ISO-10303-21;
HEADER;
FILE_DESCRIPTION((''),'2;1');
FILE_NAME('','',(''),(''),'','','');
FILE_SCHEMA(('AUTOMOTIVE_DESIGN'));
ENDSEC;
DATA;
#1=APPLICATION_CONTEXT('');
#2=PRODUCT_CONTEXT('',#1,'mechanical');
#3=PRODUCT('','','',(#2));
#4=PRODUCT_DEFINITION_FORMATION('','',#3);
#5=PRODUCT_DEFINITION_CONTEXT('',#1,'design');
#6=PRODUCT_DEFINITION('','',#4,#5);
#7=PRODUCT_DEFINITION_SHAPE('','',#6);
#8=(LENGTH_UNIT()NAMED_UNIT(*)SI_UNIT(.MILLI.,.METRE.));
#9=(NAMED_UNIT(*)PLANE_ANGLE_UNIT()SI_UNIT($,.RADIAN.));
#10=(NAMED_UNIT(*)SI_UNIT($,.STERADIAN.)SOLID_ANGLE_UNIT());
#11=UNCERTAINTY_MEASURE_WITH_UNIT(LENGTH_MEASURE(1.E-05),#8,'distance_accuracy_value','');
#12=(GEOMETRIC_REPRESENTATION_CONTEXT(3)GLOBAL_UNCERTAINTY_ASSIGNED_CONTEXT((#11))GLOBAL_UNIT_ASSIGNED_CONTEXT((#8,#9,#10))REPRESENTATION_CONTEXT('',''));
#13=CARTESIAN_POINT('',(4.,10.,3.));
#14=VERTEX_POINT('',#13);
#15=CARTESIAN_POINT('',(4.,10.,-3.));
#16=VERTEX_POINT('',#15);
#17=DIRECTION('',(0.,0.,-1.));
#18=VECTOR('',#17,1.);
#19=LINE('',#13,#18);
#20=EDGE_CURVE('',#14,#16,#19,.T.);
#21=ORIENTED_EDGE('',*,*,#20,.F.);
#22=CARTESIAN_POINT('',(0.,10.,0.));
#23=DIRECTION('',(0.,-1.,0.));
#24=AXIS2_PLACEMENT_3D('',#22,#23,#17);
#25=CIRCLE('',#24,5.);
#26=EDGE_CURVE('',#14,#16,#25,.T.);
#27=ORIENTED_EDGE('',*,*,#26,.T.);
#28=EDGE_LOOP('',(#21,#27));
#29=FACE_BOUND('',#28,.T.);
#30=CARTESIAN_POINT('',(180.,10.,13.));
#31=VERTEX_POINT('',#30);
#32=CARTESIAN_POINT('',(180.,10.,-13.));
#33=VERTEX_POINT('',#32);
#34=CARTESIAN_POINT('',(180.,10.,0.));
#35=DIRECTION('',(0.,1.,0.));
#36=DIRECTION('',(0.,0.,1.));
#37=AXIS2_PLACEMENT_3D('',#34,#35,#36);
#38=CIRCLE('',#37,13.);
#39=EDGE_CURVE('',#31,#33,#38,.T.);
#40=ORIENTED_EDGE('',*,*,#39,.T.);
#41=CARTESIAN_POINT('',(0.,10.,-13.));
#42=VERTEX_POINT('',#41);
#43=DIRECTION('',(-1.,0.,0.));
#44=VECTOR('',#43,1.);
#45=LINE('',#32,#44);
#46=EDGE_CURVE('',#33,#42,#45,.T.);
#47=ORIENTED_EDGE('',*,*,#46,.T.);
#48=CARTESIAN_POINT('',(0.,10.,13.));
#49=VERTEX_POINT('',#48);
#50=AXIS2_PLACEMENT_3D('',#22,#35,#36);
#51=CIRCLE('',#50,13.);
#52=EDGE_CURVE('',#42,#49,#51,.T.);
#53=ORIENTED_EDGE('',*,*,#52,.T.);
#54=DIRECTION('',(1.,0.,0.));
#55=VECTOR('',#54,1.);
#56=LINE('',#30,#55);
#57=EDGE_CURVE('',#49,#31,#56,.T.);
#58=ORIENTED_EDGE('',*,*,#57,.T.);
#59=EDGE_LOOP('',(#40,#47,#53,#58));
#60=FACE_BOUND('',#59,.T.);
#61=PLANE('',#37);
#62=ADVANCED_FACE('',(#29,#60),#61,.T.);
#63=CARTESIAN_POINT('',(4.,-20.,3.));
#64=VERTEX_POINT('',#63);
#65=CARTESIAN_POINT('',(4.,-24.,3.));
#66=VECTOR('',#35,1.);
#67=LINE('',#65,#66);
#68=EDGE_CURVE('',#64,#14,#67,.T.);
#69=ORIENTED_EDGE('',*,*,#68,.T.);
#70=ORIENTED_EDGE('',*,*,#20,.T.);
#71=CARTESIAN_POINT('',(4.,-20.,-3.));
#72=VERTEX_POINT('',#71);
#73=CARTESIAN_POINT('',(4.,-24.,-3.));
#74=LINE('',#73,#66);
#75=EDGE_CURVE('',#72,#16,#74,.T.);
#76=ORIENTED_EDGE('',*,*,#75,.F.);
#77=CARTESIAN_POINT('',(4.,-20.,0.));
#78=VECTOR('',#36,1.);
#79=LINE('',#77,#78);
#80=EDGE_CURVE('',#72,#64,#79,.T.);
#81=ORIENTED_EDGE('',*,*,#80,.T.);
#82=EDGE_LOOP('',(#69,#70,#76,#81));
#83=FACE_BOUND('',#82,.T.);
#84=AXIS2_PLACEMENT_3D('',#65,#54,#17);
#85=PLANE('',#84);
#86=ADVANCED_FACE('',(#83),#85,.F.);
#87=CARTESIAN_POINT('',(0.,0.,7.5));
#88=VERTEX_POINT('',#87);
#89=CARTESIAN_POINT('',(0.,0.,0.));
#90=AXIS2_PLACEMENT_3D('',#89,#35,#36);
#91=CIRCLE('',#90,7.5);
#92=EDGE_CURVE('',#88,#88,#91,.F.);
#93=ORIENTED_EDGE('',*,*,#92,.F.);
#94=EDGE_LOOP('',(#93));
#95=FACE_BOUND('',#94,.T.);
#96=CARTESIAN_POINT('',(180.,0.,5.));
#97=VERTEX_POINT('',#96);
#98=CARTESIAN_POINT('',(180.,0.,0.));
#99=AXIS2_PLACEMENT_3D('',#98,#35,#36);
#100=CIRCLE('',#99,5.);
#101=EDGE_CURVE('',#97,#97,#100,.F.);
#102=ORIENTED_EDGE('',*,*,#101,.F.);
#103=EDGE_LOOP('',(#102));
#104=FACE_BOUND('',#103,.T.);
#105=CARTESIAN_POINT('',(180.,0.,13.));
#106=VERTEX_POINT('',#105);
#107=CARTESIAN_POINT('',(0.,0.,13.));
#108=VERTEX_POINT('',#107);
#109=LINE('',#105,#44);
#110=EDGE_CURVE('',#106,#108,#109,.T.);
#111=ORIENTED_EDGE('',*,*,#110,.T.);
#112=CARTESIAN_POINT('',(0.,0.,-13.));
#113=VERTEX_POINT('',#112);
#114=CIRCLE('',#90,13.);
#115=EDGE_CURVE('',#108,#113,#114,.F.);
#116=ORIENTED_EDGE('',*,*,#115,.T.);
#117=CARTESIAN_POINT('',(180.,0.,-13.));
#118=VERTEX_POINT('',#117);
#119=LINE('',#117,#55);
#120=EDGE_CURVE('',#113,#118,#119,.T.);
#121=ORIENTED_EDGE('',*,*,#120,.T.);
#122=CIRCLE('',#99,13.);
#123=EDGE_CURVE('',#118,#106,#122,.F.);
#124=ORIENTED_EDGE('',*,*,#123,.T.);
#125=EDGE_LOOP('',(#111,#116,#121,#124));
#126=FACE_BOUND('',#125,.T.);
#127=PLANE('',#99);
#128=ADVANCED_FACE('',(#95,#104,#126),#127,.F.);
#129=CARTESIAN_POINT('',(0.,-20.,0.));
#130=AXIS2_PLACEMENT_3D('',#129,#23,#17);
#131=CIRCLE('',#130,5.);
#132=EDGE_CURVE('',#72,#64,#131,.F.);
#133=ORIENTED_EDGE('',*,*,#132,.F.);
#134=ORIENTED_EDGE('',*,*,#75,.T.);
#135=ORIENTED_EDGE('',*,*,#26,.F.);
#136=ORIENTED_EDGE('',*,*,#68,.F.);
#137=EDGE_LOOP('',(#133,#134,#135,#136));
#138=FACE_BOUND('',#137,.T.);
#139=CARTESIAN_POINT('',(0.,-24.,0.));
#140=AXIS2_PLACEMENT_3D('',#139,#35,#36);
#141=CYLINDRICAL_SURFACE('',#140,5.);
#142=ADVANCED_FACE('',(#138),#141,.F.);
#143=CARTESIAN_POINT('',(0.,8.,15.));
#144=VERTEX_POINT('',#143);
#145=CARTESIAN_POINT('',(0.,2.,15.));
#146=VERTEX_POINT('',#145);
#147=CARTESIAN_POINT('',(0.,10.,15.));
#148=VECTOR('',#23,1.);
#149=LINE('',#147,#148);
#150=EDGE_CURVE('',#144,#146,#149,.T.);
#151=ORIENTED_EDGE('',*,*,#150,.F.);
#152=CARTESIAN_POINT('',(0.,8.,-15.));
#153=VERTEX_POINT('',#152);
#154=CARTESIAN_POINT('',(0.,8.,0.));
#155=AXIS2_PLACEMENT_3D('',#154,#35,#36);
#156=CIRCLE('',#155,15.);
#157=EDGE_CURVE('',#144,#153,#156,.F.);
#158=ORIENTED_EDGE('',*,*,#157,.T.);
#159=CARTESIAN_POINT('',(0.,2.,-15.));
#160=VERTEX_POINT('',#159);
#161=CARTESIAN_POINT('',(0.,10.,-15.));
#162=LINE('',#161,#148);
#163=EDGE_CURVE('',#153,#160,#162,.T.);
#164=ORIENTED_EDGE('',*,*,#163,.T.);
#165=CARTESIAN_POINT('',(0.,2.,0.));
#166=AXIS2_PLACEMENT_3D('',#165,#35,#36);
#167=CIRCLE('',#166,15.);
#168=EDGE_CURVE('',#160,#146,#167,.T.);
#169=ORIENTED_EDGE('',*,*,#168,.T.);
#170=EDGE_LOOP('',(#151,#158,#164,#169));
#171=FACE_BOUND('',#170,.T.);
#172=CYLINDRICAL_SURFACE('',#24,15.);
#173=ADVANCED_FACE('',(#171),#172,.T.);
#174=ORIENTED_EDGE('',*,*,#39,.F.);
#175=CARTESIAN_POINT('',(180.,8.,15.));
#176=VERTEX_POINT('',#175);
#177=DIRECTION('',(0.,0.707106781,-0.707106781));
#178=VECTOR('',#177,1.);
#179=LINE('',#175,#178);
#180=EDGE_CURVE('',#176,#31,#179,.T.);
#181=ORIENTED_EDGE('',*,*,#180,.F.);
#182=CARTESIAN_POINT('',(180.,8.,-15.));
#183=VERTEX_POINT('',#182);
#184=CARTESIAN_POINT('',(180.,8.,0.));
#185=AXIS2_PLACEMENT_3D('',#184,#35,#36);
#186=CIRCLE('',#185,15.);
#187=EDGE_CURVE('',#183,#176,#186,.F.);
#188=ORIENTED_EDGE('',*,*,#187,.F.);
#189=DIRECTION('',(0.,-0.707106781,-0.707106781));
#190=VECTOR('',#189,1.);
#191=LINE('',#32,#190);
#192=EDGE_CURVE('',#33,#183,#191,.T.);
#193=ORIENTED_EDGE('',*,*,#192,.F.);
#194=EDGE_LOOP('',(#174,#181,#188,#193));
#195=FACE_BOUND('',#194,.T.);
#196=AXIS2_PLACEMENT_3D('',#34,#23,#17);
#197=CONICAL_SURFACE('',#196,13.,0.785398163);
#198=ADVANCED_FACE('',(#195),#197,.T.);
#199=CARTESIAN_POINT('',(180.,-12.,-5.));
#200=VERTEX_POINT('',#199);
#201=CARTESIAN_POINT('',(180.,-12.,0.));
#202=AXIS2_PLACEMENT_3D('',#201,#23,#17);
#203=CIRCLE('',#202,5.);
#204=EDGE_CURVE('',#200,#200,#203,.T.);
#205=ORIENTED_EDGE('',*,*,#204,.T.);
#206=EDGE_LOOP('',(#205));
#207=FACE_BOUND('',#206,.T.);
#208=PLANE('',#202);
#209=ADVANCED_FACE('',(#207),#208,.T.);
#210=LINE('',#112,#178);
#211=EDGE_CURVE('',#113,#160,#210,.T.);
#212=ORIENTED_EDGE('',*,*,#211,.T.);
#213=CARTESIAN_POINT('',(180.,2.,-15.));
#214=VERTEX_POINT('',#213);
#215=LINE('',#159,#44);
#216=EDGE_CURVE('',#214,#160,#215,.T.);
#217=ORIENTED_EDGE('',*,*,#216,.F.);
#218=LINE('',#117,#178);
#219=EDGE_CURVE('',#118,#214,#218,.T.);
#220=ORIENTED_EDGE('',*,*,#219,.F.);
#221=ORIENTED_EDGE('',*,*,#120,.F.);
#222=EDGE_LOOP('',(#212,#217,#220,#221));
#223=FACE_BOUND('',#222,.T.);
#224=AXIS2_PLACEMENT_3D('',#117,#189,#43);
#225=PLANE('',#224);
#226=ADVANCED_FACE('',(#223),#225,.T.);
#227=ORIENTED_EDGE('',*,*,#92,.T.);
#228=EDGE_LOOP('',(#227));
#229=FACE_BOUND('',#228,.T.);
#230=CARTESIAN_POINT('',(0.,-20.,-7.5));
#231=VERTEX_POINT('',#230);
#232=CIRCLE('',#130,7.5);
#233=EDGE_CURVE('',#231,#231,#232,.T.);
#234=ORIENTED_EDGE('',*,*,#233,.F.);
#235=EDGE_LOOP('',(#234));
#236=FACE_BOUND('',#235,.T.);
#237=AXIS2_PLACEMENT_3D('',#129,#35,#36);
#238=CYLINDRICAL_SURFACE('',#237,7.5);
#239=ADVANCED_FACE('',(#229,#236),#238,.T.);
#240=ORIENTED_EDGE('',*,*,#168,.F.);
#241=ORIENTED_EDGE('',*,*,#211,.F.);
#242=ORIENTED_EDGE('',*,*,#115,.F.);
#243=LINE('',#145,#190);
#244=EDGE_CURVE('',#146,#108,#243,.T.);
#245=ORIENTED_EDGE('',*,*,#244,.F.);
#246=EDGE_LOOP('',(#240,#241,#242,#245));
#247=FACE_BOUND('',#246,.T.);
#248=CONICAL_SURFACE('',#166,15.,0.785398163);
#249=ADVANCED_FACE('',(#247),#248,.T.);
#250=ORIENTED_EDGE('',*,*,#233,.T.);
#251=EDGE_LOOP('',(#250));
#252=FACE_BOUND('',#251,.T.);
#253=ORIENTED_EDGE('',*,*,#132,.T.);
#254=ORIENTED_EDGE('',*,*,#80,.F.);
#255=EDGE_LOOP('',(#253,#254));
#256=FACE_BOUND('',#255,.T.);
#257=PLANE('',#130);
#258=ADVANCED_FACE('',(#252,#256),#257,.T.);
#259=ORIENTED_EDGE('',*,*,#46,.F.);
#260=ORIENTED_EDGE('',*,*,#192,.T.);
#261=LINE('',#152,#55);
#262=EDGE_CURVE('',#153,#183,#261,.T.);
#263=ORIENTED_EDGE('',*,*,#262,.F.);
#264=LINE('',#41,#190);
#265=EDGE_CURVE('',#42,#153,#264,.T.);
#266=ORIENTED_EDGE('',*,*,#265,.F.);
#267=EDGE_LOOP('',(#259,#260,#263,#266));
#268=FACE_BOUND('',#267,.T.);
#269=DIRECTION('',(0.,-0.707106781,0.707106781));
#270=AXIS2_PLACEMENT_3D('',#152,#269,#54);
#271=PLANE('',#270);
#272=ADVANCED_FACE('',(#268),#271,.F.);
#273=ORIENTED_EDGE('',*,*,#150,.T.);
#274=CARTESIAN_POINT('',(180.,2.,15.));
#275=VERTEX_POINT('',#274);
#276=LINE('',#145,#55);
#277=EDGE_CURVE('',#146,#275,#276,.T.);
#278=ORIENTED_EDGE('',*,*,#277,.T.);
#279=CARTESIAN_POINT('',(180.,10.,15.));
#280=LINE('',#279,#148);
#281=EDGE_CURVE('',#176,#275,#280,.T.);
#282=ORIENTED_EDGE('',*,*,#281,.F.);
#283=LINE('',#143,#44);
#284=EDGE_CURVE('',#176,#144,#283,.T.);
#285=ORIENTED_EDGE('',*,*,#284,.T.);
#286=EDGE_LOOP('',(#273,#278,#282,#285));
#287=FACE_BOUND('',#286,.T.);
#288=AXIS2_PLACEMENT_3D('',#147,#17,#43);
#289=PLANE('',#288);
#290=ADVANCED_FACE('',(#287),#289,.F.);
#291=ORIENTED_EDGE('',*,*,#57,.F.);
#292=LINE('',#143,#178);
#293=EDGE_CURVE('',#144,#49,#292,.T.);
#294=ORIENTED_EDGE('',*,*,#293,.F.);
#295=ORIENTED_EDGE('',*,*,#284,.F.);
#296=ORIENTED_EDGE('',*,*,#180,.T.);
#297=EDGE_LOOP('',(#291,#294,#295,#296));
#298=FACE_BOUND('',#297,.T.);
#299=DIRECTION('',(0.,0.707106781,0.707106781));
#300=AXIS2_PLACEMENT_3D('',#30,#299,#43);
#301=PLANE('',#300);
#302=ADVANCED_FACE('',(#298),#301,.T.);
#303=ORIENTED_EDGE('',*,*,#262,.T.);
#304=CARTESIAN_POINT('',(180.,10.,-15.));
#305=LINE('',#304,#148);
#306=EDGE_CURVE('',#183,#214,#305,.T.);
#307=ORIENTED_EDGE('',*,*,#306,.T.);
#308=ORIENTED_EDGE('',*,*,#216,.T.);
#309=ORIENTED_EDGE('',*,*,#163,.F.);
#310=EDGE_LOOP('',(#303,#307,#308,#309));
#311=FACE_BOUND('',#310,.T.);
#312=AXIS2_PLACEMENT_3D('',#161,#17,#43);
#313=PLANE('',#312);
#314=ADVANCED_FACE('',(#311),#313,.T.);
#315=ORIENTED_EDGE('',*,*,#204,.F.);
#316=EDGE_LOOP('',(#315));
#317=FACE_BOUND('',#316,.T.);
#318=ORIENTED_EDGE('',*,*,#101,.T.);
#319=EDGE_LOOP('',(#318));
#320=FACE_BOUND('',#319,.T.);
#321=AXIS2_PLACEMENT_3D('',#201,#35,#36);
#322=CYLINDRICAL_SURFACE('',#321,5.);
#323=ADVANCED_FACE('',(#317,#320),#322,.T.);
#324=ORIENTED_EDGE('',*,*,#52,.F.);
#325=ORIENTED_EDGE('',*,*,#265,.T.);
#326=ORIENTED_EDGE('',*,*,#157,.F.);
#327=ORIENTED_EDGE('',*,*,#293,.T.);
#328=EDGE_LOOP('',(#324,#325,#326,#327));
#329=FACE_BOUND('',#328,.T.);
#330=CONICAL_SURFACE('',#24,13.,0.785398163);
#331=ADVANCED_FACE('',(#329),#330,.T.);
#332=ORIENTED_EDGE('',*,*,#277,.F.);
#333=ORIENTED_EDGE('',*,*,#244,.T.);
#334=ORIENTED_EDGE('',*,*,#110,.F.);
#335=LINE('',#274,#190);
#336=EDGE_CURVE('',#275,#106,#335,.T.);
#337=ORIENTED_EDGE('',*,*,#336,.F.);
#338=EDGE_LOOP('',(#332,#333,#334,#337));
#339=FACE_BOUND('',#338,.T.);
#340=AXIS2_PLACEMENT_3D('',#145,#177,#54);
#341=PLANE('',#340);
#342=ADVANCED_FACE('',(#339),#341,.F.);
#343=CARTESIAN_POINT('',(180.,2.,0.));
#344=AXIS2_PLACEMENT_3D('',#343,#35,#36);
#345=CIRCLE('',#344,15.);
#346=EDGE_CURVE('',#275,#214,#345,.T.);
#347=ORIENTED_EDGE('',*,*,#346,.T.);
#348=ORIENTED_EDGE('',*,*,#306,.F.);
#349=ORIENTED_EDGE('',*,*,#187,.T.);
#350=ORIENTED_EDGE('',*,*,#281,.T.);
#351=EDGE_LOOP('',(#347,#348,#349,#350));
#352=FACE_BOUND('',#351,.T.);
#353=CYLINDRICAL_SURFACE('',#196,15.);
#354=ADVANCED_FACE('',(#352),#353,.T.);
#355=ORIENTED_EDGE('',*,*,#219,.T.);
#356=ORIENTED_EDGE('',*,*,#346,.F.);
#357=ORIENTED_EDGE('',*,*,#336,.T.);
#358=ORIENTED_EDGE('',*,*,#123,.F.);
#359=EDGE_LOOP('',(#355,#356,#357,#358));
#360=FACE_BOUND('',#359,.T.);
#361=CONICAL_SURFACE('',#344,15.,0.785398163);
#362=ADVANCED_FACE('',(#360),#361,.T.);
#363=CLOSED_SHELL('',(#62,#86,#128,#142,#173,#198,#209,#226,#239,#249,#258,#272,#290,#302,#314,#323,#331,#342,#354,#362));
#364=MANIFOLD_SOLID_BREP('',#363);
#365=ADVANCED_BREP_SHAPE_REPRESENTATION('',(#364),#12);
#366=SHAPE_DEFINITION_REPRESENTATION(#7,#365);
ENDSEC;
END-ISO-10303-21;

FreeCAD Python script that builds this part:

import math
import FreeCAD as App
import Part
import Sketcher
from FreeCAD import Vector


def edges_at(feature, points):
    """Names of the edges that pass closest to the given points."""
    edges = feature.Shape.Edges
    near = lambda p: min(range(len(edges)), key=lambda i: edges[i].distToShape(Part.Vertex(*p))[0])
    return sorted({f"Edge{near(p) + 1}" for p in points})

doc = App.newDocument("Part")
body = doc.addObject("PartDesign::Body", "Body")

# Sketch on XZ plane
sketch1 = body.newObject("Sketcher::SketchObject", "Sketch")
sketch1.AttachmentSupport = (doc.getObject("XZ_Plane"), [""])
sketch1.MapMode = "FlatFace"
sketch1.addGeometry(Part.LineSegment(Vector(180, -15, 0), Vector(0, -15, 0)), False)
sketch1.addGeometry(Part.ArcOfCircle(Part.Circle(Vector(0, 0, 0), Vector(0, 0, 1), 15), math.radians(90), math.radians(270)), False)
sketch1.addGeometry(Part.LineSegment(Vector(0, 15, 0), Vector(180, 15, 0)), False)
sketch1.addGeometry(Part.ArcOfCircle(Part.Circle(Vector(180, 0, 0), Vector(0, 0, 1), 15), math.radians(-90), math.radians(90)), False)
sketch1.addConstraint(Sketcher.Constraint("Tangent", 0, 2, 1, 2))
sketch1.addConstraint(Sketcher.Constraint("Tangent", 1, 1, 2, 1))
sketch1.addConstraint(Sketcher.Constraint("Tangent", 2, 2, 3, 2))
sketch1.addConstraint(Sketcher.Constraint("Tangent", 3, 1, 0, 1))
sketch1.addConstraint(Sketcher.Constraint("Horizontal", 0))
sketch1.addConstraint(Sketcher.Constraint("Horizontal", 2))
sketch1.addConstraint(Sketcher.Constraint("Coincident", 1, 3, -1, 1))
sketch1.addConstraint(Sketcher.Constraint("Radius", 1, 15.0))
sketch1.addConstraint(Sketcher.Constraint("DistanceX", 0, 2, 0, 1, 180.0))
pad1 = body.newObject("PartDesign::Pad", "Pad")
pad1.Profile = sketch1
pad1.Length = 10
pad1.Reversed = True
doc.recompute()

chamfer = body.newObject("PartDesign::Chamfer", "Chamfer")
chamfer.Base = (pad1, edges_at(pad1, [
    (90, 10, -15),
    (-15, 10, 0),
    (90, 10, 15),
    (-15, 0, 0),
    (90, 0, -15),
    (195, 0, 0),
    (90, 0, 15),
    (195, 10, 0),
]))
chamfer.Size = 2

# Sketch on XZ plane
sketch2 = body.newObject("Sketcher::SketchObject", "Sketch001")
sketch2.AttachmentSupport = (doc.getObject("XZ_Plane"), [""])
sketch2.MapMode = "FlatFace"
sketch2.addGeometry(Part.Circle(Vector(0, 0, 0), Vector(0, 0, 1), 8), False)
sketch2.addConstraint(Sketcher.Constraint("Coincident", 0, 3, -1, 1))
sketch2.addConstraint(Sketcher.Constraint("Diameter", 0, 15.0))
pad2 = body.newObject("PartDesign::Pad", "Pad001")
pad2.Profile = sketch2
pad2.Length = 20

# Sketch on XZ plane
sketch3 = body.newObject("Sketcher::SketchObject", "Sketch002")
sketch3.AttachmentSupport = (doc.getObject("XZ_Plane"), [""])
sketch3.MapMode = "FlatFace"
sketch3.addGeometry(Part.LineSegment(Vector(4, -3, 0), Vector(4, 3, 0)), False)
sketch3.addGeometry(Part.ArcOfCircle(Part.Circle(Vector(0, 0, 0), Vector(0, 0, 1), 5), math.radians(37), math.radians(323)), False)
sketch3.addConstraint(Sketcher.Constraint("Coincident", 0, 1, 1, 2))
sketch3.addConstraint(Sketcher.Constraint("Coincident", 1, 1, 0, 2))
sketch3.addConstraint(Sketcher.Constraint("Vertical", 0))
sketch3.addConstraint(Sketcher.Constraint("Coincident", 1, 3, -1, 1))
sketch3.addConstraint(Sketcher.Constraint("Radius", 1, 5.0))
sketch3.addConstraint(Sketcher.Constraint("DistanceY", 0, 1, 0, 2, 6.0))
pocket1 = body.newObject("PartDesign::Pocket", "Pocket")
pocket1.Profile = sketch3
pocket1.Type = "ThroughAll"
pocket1.Midplane = True

# Sketch on XZ plane
sketch4 = body.newObject("Sketcher::SketchObject", "Sketch003")
sketch4.AttachmentSupport = (doc.getObject("XZ_Plane"), [""])
sketch4.MapMode = "FlatFace"
sketch4.addGeometry(Part.Circle(Vector(180, 0, 0), Vector(0, 0, 1), 5), False)
sketch4.addConstraint(Sketcher.Constraint("PointOnObject", 0, 3, -1))
sketch4.addConstraint(Sketcher.Constraint("Diameter", 0, 10.0))
sketch4.addConstraint(Sketcher.Constraint("DistanceX", -1, 1, 0, 3, 180.0))
pad3 = body.newObject("PartDesign::Pad", "Pad002")
pad3.Profile = sketch4
pad3.Length = 12

doc.recompute()
